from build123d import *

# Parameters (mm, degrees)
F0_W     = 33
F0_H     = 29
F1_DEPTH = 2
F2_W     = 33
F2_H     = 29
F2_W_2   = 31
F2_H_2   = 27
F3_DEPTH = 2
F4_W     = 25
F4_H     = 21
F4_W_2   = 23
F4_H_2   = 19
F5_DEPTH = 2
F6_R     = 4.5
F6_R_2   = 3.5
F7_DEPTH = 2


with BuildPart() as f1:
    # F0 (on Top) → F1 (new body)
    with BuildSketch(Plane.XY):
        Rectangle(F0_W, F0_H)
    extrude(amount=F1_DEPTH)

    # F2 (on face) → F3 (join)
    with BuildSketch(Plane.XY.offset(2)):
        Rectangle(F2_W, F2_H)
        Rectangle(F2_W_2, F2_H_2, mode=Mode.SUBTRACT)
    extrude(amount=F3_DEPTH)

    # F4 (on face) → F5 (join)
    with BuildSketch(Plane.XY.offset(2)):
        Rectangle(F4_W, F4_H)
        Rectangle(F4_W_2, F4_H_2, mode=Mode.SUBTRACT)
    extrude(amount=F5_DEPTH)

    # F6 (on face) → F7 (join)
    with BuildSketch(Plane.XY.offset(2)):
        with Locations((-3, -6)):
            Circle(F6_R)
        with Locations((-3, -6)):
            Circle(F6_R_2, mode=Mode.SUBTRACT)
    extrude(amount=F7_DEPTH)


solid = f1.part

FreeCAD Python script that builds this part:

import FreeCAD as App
import Part
import Sketcher

doc = App.newDocument("Part")
body = doc.addObject("PartDesign::Body", "Body")

sketch1 = doc.addObject("Sketcher::SketchObject", "Sketch")
body.addObject(sketch1)
sketch1.AttachmentSupport = (doc.XY_Plane, [""])
sketch1.MapMode = "FlatFace"
sketch1.addGeometry([
    Part.LineSegment(App.Vector(-16, 14, 0), App.Vector(-16, -14, 0)),
    Part.LineSegment(App.Vector(-16, -14, 0), App.Vector(16, -14, 0)),
    Part.LineSegment(App.Vector(16, -14, 0), App.Vector(16, 14, 0)),
    Part.LineSegment(App.Vector(16, 14, 0), App.Vector(-16, 14, 0)),
], False)
sketch1.addConstraint([
    Sketcher.Constraint("Coincident", 0, 2, 1, 1),
    Sketcher.Constraint("Coincident", 1, 2, 2, 1),
    Sketcher.Constraint("Coincident", 2, 2, 3, 1),
    Sketcher.Constraint("Coincident", 3, 2, 0, 1),
    Sketcher.Constraint("Vertical", 0),
    Sketcher.Constraint("Horizontal", 1),
    Sketcher.Constraint("Vertical", 2),
    Sketcher.Constraint("Horizontal", 3),
    Sketcher.Constraint("Symmetric", 0, 2, 2, 2, -1, 1),
    Sketcher.Constraint("DistanceX", 1, 1, 1, 2, 33.0),
    Sketcher.Constraint("DistanceY", 0, 2, 0, 1, 29.0),
])
pad1 = doc.addObject("PartDesign::Pad", "Pad")
body.addObject(pad1)
pad1.Profile = sketch1
pad1.Length = 2

sketch2 = doc.addObject("Sketcher::SketchObject", "Sketch001")
body.addObject(sketch2)
sketch2.AttachmentSupport = (doc.XY_Plane, [""])
sketch2.MapMode = "FlatFace"
sketch2.AttachmentOffset = App.Placement(App.Vector(0, 0, 2), App.Rotation())
sketch2.addGeometry([
    Part.LineSegment(App.Vector(-16, 14, 0), App.Vector(-16, -14, 0)),
    Part.LineSegment(App.Vector(-16, -14, 0), App.Vector(16, -14, 0)),
    Part.LineSegment(App.Vector(16, -14, 0), App.Vector(16, 14, 0)),
    Part.LineSegment(App.Vector(16, 14, 0), App.Vector(-16, 14, 0)),
    Part.LineSegment(App.Vector(16, -14, 0), App.Vector(-16, -14, 0)),
    Part.LineSegment(App.Vector(-16, -14, 0), App.Vector(-16, 14, 0)),
    Part.LineSegment(App.Vector(-16, 14, 0), App.Vector(16, 14, 0)),
    Part.LineSegment(App.Vector(16, 14, 0), App.Vector(16, -14, 0)),
], False)
sketch2.addConstraint([
    Sketcher.Constraint("Coincident", 0, 2, 1, 1),
    Sketcher.Constraint("Coincident", 1, 2, 2, 1),
    Sketcher.Constraint("Coincident", 2, 2, 3, 1),
    Sketcher.Constraint("Coincident", 3, 2, 0, 1),
    Sketcher.Constraint("Coincident", 4, 2, 5, 1),
    Sketcher.Constraint("Coincident", 5, 2, 6, 1),
    Sketcher.Constraint("Coincident", 6, 2, 7, 1),
    Sketcher.Constraint("Coincident", 7, 2, 4, 1),
    Sketcher.Constraint("Vertical", 0),
    Sketcher.Constraint("Horizontal", 1),
    Sketcher.Constraint("Vertical", 2),
    Sketcher.Constraint("Horizontal", 3),
    Sketcher.Constraint("Horizontal", 4),
    Sketcher.Constraint("Vertical", 5),
    Sketcher.Constraint("Horizontal", 6),
    Sketcher.Constraint("Vertical", 7),
    Sketcher.Constraint("Symmetric", 0, 2, 2, 2, -1, 1),
    Sketcher.Constraint("Symmetric", 4, 2, 6, 2, -1, 1),
    Sketcher.Constraint("DistanceX", 1, 1, 1, 2, 33.0),
    Sketcher.Constraint("DistanceX", 4, 2, 4, 1, 31.0),
    Sketcher.Constraint("DistanceY", 0, 2, 0, 1, 29.0),
    Sketcher.Constraint("DistanceY", 5, 1, 5, 2, 27.0),
])
pad2 = doc.addObject("PartDesign::Pad", "Pad001")
body.addObject(pad2)
pad2.Profile = sketch2
pad2.Length = 2

sketch3 = doc.addObject("Sketcher::SketchObject", "Sketch002")
body.addObject(sketch3)
sketch3.AttachmentSupport = (doc.XY_Plane, [""])
sketch3.MapMode = "FlatFace"
sketch3.AttachmentOffset = App.Placement(App.Vector(0, 0, 2), App.Rotation())
sketch3.addGeometry([
    Part.LineSegment(App.Vector(-12, 10, 0), App.Vector(-12, -10, 0)),
    Part.LineSegment(App.Vector(-12, -10, 0), App.Vector(12, -10, 0)),
    Part.LineSegment(App.Vector(12, -10, 0), App.Vector(12, 10, 0)),
    Part.LineSegment(App.Vector(12, 10, 0), App.Vector(-12, 10, 0)),
    Part.LineSegment(App.Vector(12, -10, 0), App.Vector(-12, -10, 0)),
    Part.LineSegment(App.Vector(-12, -10, 0), App.Vector(-12, 10, 0)),
    Part.LineSegment(App.Vector(-12, 10, 0), App.Vector(12, 10, 0)),
    Part.LineSegment(App.Vector(12, 10, 0), App.Vector(12, -10, 0)),
], False)
sketch3.addConstraint([
    Sketcher.Constraint("Coincident", 0, 2, 1, 1),
    Sketcher.Constraint("Coincident", 1, 2, 2, 1),
    Sketcher.Constraint("Coincident", 2, 2, 3, 1),
    Sketcher.Constraint("Coincident", 3, 2, 0, 1),
    Sketcher.Constraint("Coincident", 4, 2, 5, 1),
    Sketcher.Constraint("Coincident", 5, 2, 6, 1),
    Sketcher.Constraint("Coincident", 6, 2, 7, 1),
    Sketcher.Constraint("Coincident", 7, 2, 4, 1),
    Sketcher.Constraint("Vertical", 0),
    Sketcher.Constraint("Horizontal", 1),
    Sketcher.Constraint("Vertical", 2),
    Sketcher.Constraint("Horizontal", 3),
    Sketcher.Constraint("Horizontal", 4),
    Sketcher.Constraint("Vertical", 5),
    Sketcher.Constraint("Horizontal", 6),
    Sketcher.Constraint("Vertical", 7),
    Sketcher.Constraint("Symmetric", 0, 2, 2, 2, -1, 1),
    Sketcher.Constraint("Symmetric", 4, 2, 6, 2, -1, 1),
    Sketcher.Constraint("DistanceX", 1, 1, 1, 2, 25.0),
    Sketcher.Constraint("DistanceX", 4, 2, 4, 1, 23.0),
    Sketcher.Constraint("DistanceY", 0, 2, 0, 1, 21.0),
    Sketcher.Constraint("DistanceY", 5, 1, 5, 2, 19.0),
])
pad3 = doc.addObject("PartDesign::Pad", "Pad002")
body.addObject(pad3)
pad3.Profile = sketch3
pad3.Length = 2

sketch4 = doc.addObject("Sketcher::SketchObject", "Sketch003")
body.addObject(sketch4)
sketch4.AttachmentSupport = (doc.XY_Plane, [""])
sketch4.MapMode = "FlatFace"
sketch4.AttachmentOffset = App.Placement(App.Vector(0, 0, 2), App.Rotation())
sketch4.addGeometry([
    Part.Circle(App.Vector(-3, -6, 0), App.Vector(0, 0, 1), 4.5),
    Part.Circle(App.Vector(-3, -6, 0), App.Vector(0, 0, 1), 3.5),
], False)
sketch4.addConstraint([
    Sketcher.Constraint("Coincident", 1, 3, 0, 3),
    Sketcher.Constraint("Diameter", 0, 9.0),
    Sketcher.Constraint("Diameter", 1, 7.0),
    Sketcher.Constraint("DistanceX", 0, 3, -1, 1, 3.0),
    Sketcher.Constraint("DistanceY", 0, 3, -1, 1, 6.0),
])
pad4 = doc.addObject("PartDesign::Pad", "Pad003")
body.addObject(pad4)
pad4.Profile = sketch4
pad4.Length = 2

doc.recompute()
